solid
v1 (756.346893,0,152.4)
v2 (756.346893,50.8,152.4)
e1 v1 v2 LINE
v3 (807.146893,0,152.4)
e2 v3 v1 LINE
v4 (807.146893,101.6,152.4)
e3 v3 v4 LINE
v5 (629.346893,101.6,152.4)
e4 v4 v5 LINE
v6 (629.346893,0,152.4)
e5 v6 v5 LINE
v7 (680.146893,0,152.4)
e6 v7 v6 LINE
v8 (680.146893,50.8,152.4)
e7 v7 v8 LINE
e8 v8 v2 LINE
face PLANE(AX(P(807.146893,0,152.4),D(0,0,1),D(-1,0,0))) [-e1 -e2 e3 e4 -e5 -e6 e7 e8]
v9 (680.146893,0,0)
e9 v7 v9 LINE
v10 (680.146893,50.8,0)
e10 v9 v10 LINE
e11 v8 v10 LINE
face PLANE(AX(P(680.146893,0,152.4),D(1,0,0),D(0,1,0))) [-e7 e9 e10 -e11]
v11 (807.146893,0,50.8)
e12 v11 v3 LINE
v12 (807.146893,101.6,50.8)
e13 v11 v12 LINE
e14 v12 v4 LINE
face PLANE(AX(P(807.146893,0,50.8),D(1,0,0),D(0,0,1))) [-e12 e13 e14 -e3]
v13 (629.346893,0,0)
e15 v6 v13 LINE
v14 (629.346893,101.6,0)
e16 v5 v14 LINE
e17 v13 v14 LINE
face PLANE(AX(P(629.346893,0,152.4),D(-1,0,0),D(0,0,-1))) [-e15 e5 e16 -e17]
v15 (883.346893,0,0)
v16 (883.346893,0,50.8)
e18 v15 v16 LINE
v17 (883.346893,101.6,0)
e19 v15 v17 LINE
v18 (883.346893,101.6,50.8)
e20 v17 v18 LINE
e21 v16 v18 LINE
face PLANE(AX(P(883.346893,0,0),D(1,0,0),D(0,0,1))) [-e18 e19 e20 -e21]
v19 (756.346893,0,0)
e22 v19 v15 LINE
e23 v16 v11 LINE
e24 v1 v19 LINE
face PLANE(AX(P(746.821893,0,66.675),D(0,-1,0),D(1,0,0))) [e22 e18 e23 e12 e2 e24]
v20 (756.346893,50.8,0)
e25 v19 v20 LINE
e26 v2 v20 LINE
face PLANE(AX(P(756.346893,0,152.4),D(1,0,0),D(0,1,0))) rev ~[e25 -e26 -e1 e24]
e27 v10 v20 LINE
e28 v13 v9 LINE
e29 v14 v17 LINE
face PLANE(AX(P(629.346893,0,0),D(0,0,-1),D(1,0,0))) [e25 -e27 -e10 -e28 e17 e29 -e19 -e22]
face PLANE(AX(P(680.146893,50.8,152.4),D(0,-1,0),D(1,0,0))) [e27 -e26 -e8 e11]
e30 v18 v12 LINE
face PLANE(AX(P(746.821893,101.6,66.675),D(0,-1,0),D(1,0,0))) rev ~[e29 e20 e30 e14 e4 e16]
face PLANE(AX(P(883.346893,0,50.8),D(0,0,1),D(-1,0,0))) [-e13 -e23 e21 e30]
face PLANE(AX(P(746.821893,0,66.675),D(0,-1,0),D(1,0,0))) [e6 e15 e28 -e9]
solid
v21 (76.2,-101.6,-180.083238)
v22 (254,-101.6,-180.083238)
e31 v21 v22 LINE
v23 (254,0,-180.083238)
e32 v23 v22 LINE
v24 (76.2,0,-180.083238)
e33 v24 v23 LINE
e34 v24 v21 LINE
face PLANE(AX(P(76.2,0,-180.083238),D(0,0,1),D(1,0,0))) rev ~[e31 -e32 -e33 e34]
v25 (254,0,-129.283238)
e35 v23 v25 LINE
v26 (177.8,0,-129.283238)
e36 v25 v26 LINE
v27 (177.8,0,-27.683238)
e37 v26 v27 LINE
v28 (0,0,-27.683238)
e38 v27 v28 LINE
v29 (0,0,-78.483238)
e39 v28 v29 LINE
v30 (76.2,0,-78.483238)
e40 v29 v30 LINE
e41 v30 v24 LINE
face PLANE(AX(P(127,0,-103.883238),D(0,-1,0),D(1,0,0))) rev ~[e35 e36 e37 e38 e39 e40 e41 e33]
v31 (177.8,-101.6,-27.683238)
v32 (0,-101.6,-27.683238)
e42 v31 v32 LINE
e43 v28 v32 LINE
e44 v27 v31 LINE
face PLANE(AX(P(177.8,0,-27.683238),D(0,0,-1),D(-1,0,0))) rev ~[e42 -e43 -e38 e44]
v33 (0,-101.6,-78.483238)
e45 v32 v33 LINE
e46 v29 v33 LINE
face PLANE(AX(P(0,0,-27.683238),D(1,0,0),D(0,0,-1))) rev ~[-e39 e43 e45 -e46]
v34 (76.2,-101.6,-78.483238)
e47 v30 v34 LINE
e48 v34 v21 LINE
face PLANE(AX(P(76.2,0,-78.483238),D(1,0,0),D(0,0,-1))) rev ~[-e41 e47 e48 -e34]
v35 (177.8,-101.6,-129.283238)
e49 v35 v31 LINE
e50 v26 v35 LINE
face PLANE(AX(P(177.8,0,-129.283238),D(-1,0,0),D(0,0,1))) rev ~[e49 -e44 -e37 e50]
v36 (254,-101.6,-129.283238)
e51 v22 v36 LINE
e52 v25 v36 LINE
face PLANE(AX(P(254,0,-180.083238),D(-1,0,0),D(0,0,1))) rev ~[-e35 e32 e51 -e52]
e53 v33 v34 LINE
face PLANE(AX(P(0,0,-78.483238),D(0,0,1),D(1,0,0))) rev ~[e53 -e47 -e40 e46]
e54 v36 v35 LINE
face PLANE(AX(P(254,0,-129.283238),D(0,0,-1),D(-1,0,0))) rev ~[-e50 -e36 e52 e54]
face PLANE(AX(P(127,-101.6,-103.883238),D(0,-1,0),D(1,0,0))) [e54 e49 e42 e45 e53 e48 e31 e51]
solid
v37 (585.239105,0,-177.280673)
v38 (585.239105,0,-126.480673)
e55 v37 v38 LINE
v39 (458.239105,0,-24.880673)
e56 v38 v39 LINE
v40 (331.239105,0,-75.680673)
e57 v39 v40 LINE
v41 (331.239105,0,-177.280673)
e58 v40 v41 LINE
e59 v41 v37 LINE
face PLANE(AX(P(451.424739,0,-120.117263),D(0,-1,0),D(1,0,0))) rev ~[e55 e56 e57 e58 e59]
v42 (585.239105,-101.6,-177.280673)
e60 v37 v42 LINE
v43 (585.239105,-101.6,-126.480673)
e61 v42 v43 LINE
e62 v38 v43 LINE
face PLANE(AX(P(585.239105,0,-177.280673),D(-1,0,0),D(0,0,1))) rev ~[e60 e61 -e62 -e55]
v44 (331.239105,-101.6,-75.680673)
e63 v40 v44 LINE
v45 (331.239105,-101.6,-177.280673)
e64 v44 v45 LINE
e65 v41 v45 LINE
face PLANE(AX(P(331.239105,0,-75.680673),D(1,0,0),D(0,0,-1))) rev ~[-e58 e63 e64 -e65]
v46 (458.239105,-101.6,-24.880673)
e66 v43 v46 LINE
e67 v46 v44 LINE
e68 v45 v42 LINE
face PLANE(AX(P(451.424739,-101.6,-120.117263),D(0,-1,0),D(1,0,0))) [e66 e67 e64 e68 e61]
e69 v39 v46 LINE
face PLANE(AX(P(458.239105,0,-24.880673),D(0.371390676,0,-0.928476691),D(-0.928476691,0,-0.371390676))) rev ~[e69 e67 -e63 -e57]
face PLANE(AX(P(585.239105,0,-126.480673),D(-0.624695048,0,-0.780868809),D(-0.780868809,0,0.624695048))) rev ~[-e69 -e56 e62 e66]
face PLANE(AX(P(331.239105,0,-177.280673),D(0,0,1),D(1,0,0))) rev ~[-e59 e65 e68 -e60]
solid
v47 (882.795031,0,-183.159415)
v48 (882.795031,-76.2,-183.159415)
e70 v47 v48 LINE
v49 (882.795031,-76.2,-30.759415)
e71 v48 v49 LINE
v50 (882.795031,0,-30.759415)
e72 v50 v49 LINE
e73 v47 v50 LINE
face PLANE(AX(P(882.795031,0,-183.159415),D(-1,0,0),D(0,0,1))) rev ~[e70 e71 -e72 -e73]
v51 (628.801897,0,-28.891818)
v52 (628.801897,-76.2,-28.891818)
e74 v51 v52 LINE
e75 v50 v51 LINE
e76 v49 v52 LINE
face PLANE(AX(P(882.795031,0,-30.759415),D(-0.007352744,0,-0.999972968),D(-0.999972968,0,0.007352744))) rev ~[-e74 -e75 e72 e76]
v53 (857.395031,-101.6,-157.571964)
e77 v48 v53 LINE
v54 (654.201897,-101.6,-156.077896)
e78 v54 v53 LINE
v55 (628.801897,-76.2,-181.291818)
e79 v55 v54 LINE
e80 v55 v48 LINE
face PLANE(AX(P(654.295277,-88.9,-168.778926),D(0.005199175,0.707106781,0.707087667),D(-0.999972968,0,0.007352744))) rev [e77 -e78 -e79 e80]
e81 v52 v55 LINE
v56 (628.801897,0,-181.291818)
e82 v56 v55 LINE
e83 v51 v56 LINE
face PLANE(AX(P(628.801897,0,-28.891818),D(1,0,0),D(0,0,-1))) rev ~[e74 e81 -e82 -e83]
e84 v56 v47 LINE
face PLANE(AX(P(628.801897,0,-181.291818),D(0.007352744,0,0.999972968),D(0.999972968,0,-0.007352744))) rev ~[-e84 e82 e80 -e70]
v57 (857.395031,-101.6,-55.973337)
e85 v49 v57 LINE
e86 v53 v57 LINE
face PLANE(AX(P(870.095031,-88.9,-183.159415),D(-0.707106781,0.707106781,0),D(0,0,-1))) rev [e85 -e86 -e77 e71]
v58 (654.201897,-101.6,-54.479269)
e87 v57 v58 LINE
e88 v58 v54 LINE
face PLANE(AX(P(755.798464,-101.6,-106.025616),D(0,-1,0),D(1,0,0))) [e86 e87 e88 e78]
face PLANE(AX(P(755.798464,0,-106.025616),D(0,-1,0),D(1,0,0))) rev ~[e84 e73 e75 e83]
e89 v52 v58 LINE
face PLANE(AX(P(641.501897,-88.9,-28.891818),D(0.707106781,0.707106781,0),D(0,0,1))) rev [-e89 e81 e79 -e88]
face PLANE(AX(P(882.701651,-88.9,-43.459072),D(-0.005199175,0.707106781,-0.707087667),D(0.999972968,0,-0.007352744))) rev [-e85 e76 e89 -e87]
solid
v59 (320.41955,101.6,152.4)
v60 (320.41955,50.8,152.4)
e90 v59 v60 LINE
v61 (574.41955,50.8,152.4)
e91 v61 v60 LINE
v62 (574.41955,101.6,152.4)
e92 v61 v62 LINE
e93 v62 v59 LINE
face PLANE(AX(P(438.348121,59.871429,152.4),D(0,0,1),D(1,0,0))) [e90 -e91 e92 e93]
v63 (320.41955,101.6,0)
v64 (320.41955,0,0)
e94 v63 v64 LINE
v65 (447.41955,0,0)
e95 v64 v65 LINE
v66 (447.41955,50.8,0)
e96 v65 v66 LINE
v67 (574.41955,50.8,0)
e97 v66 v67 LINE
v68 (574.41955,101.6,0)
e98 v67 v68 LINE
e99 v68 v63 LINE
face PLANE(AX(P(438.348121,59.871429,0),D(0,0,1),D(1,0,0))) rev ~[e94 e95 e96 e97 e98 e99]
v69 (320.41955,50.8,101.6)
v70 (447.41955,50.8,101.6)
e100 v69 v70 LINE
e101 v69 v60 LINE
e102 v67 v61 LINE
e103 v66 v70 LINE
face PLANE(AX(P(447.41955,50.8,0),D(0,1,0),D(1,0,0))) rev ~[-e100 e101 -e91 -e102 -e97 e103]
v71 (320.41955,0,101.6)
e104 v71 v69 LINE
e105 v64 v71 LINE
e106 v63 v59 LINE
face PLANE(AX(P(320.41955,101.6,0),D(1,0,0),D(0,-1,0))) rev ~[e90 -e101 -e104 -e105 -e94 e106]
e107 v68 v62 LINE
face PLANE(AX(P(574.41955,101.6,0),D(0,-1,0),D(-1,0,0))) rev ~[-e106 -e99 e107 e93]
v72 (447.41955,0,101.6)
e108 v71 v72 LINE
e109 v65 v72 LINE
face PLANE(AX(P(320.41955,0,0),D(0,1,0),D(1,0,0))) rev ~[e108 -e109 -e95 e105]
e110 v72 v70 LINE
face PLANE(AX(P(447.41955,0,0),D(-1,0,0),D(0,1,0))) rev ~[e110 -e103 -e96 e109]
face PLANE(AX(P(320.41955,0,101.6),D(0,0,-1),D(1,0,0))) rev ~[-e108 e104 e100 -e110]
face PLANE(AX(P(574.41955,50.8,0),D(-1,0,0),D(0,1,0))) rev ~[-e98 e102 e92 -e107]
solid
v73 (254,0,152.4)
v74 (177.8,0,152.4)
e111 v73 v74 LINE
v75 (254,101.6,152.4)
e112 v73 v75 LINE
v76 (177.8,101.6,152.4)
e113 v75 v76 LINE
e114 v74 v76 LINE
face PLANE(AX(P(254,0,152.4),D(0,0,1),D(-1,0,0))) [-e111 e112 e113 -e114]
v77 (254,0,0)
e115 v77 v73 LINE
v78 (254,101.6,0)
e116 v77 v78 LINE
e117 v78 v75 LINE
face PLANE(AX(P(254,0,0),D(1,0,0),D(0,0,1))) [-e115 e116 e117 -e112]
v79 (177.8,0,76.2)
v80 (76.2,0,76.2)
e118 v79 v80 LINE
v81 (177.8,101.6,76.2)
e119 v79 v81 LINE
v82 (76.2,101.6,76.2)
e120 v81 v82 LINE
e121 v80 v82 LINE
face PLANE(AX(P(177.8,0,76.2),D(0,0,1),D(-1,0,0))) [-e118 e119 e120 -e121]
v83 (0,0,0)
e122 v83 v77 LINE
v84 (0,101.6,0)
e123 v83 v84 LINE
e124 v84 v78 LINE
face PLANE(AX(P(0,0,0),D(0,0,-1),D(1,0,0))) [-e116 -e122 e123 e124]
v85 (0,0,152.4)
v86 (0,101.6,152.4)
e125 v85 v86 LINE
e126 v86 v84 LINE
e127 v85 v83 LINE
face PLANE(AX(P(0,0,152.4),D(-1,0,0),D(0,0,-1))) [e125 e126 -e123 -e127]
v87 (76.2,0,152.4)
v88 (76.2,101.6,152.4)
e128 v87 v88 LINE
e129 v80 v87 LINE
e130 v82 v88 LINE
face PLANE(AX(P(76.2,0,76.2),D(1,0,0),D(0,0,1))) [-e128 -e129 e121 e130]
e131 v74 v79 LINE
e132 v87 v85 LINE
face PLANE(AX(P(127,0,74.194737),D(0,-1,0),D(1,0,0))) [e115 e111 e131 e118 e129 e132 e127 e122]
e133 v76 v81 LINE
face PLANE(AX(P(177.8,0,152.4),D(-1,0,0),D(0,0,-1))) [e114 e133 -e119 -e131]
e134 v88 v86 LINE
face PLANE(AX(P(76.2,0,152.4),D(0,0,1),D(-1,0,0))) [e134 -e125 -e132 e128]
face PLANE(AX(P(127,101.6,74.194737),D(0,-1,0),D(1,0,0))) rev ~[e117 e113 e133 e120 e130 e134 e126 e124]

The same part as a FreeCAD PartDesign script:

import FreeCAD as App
import Part
import Sketcher
from FreeCAD import Vector
Q = App.Units.Quantity


def edges_at(feature, points):
    """Names of the edges that pass closest to the given points."""
    edges = feature.Shape.Edges
    near = lambda p: min(range(len(edges)), key=lambda i: edges[i].distToShape(Part.Vertex(*p))[0])
    return sorted({f"Edge{near(p) + 1}" for p in points})


def add_polygon(sketch, points):
    """Adds a closed chain of lines whose ends are joined by coincident constraints."""
    first, n = sketch.GeometryCount, len(points)
    for a, b in zip(points, points[1:] + points[:1]):
        sketch.addGeometry(Part.LineSegment(App.Vector(*a, 0), App.Vector(*b, 0)), False)
    for i in range(n):
        sketch.addConstraint(Sketcher.Constraint("Coincident", first + i, 2, first + (i + 1) % n, 1))

doc = App.newDocument("Part")
params = doc.addObject("Spreadsheet::Sheet", "Params")
for row, (alias, value) in enumerate([
    ("sketch1_width", "10 in"),
    ("sketch1_width2", "3 in"),
    ("sketch1_height", "6 in"),
    ("pad1_length", "4 in"),
    ("sketch2_width", "10 in"),
    ("sketch2_height", "2 in"),
    ("pad2_length", "6 in"),
    ("sketch3_width", "5 in"),
    ("sketch3_height", "2 in"),
    ("pocket1_length", "2 in"),
    ("sketch4_width", "10 in"),
    ("sketch4_width2", "3 in"),
    ("sketch4_height", "6 in"),
    ("sketch4_height2", "2 in"),
    ("pad3_length", "4 in"),
    ("sketch5_width", "3 in"),
    ("sketch5_height", "2 in"),
    ("pocket2_length", "6 in"),
    ("sketch6_width", "7 in"),
    ("sketch6_width2", "3 in"),
    ("sketch6_height", "2 in"),
    ("sketch6_height2", "4 in"),
    ("pad4_length", "4 in"),
    ("sketch7_width", "10 in"),
    ("sketch7_height", "2 in"),
    ("sketch7_height2", "4 in"),
    ("pad5_length", "4 in"),
    ("sketch8_height", "6 in"),
    ("sketch8_length", "10 in"),
    ("pad6_length", "4 in"),
    ("chamfer_size", "1 in"),
    ("chamfer2_size", "1 in"),
], start=1):
    params.set(f"A{row}", alias)
    params.set(f"B{row}", "=" + value)
    params.setAlias(f"B{row}", alias)

body = doc.addObject("PartDesign::Body", "Body")

sketch1 = body.newObject("Sketcher::SketchObject", "Sketch")
sketch1.AttachmentSupport = (doc.getObject("XZ_Plane"), [""])
sketch1.MapMode = "FlatFace"
add_polygon(sketch1, [(0, 152.4), (0, 0), (254, 0), (254, 152.4), (177.8, 152.4), (177.8, 76.2), (76.2, 76.2), (76.2, 152.4)])
sketch1.addConstraint(Sketcher.Constraint("Vertical", 0))
sketch1.addConstraint(Sketcher.Constraint("Horizontal", 1))
sketch1.addConstraint(Sketcher.Constraint("Vertical", 2))
sketch1.addConstraint(Sketcher.Constraint("Horizontal", 3))
sketch1.addConstraint(Sketcher.Constraint("Vertical", 4))
sketch1.addConstraint(Sketcher.Constraint("Horizontal", 5))
sketch1.addConstraint(Sketcher.Constraint("Vertical", 6))
sketch1.addConstraint(Sketcher.Constraint("Horizontal", 7))
sketch1.addConstraint(Sketcher.Constraint("Coincident", 0, 2, -1, 1))
sketch1.addConstraint(Sketcher.Constraint("Horizontal", 3, 2, 6, 2))
sketch1.addConstraint(Sketcher.Constraint("Equal", 3, 7))
sketch1.addConstraint(Sketcher.Constraint("Equal", 7, 4))
sketch1.addConstraint(Sketcher.Constraint("DistanceX", 1, 1, 1, 2, Q("10 in")))
sketch1.addConstraint(Sketcher.Constraint("DistanceX", 3, 2, 3, 1, Q("3 in")))
sketch1.addConstraint(Sketcher.Constraint("DistanceY", 0, 2, 0, 1, Q("6 in")))
sketch1.setExpression("Constraints[20]", "Params.sketch1_width")
sketch1.setExpression("Constraints[21]", "Params.sketch1_width2")
sketch1.setExpression("Constraints[22]", "Params.sketch1_height")
pad1 = body.newObject("PartDesign::Pad", "Pad")
pad1.Profile = sketch1
pad1.setExpression("Length", "Params.pad1_length")
pad1.Reversed = True
body2 = doc.addObject("PartDesign::Body", "Body001")

sketch2 = body2.newObject("Sketcher::SketchObject", "Sketch001")
sketch2.AttachmentSupport = (doc.getObject("XY_Plane001"), [""])
sketch2.MapMode = "FlatFace"
add_polygon(sketch2, [(574.41955, 50.8), (574.41955, 101.6), (320.41955, 101.6), (320.41955, 0), (447.41955, 0), (447.41955, 50.8)])
sketch2.addConstraint(Sketcher.Constraint("Vertical", 0))
sketch2.addConstraint(Sketcher.Constraint("Horizontal", 1))
sketch2.addConstraint(Sketcher.Constraint("Vertical", 2))
sketch2.addConstraint(Sketcher.Constraint("Horizontal", 3))
sketch2.addConstraint(Sketcher.Constraint("Vertical", 4))
sketch2.addConstraint(Sketcher.Constraint("Horizontal", 5))
sketch2.addConstraint(Sketcher.Constraint("PointOnObject", 2, 2, -1))
sketch2.addConstraint(Sketcher.Constraint("Equal", 3, 5))
sketch2.addConstraint(Sketcher.Constraint("Equal", 0, 4))
sketch2.addConstraint(Sketcher.Constraint("DistanceX", 1, 2, 1, 1, Q("10 in")))
sketch2.addConstraint(Sketcher.Constraint("DistanceY", 0, 1, 0, 2, Q("2 in")))
sketch2.addConstraint(Sketcher.Constraint("DistanceX", -1, 1, 0, 2, 574.41955))
sketch2.setExpression("Constraints[15]", "Params.sketch2_width")
sketch2.setExpression("Constraints[16]", "Params.sketch2_height")
pad2 = body2.newObject("PartDesign::Pad", "Pad001")
pad2.Profile = sketch2
pad2.setExpression("Length", "Params.pad2_length")

sketch3 = body2.newObject("Sketcher::SketchObject", "Sketch002")
sketch3.AttachmentSupport = (doc.getObject("XZ_Plane001"), [""])
sketch3.MapMode = "FlatFace"
add_polygon(sketch3, [(320.41955, 152.4), (320.41955, 101.6), (447.41955, 101.6), (447.41955, 152.4)])
sketch3.addConstraint(Sketcher.Constraint("Vertical", 0))
sketch3.addConstraint(Sketcher.Constraint("Horizontal", 1))
sketch3.addConstraint(Sketcher.Constraint("Vertical", 2))
sketch3.addConstraint(Sketcher.Constraint("Horizontal", 3))
sketch3.addConstraint(Sketcher.Constraint("DistanceX", 1, 1, 1, 2, Q("5 in")))
sketch3.addConstraint(Sketcher.Constraint("DistanceY", 0, 2, 0, 1, Q("2 in")))
sketch3.addConstraint(Sketcher.Constraint("DistanceY", -1, 1, 0, 2, Q("4 in")))
sketch3.addConstraint(Sketcher.Constraint("DistanceX", -1, 1, 0, 2, 320.41955))
sketch3.setExpression("Constraints[8]", "Params.sketch3_width")
sketch3.setExpression("Constraints[9]", "Params.sketch3_height")
pocket1 = body2.newObject("PartDesign::Pocket", "Pocket")
pocket1.Profile = sketch3
pocket1.setExpression("Length", "Params.pocket1_length")
body3 = doc.addObject("PartDesign::Body", "Body002")

sketch4 = body3.newObject("Sketcher::SketchObject", "Sketch003")
sketch4.AttachmentSupport = (doc.getObject("XZ_Plane002"), [""])
sketch4.MapMode = "FlatFace"
add_polygon(sketch4, [(629.346893, 152.4), (629.346893, 0), (883.346893, 0), (883.346893, 50.8), (807.146893, 50.8), (807.146893, 152.4)])
sketch4.addConstraint(Sketcher.Constraint("Vertical", 0))
sketch4.addConstraint(Sketcher.Constraint("Horizontal", 1))
sketch4.addConstraint(Sketcher.Constraint("Vertical", 2))
sketch4.addConstraint(Sketcher.Constraint("Horizontal", 3))
sketch4.addConstraint(Sketcher.Constraint("Vertical", 4))
sketch4.addConstraint(Sketcher.Constraint("Horizontal", 5))
sketch4.addConstraint(Sketcher.Constraint("PointOnObject", 0, 2, -1))
sketch4.addConstraint(Sketcher.Constraint("DistanceX", 1, 1, 1, 2, Q("10 in")))
sketch4.addConstraint(Sketcher.Constraint("DistanceX", 3, 2, 3, 1, Q("3 in")))
sketch4.addConstraint(Sketcher.Constraint("DistanceY", 0, 2, 0, 1, Q("6 in")))
sketch4.addConstraint(Sketcher.Constraint("DistanceY", 2, 1, 2, 2, Q("2 in")))
sketch4.addConstraint(Sketcher.Constraint("DistanceX", -1, 1, 0, 2, 629.346893))
sketch4.setExpression("Constraints[13]", "Params.sketch4_width")
sketch4.setExpression("Constraints[14]", "Params.sketch4_width2")
sketch4.setExpression("Constraints[15]", "Params.sketch4_height")
sketch4.setExpression("Constraints[16]", "Params.sketch4_height2")
pad3 = body3.newObject("PartDesign::Pad", "Pad002")
pad3.Profile = sketch4
pad3.setExpression("Length", "Params.pad3_length")
pad3.Reversed = True

sketch5 = body3.newObject("Sketcher::SketchObject", "Sketch004")
sketch5.AttachmentSupport = (doc.getObject("XY_Plane002"), [""])
sketch5.MapMode = "FlatFace"
sketch5.AttachmentOffset = App.Placement(Vector(0, 0, 6 * 25.4), App.Rotation())
add_polygon(sketch5, [(680.146893, 50.8), (680.146893, 0), (756.346893, 0), (756.346893, 50.8)])
sketch5.addConstraint(Sketcher.Constraint("Vertical", 0))
sketch5.addConstraint(Sketcher.Constraint("Horizontal", 1))
sketch5.addConstraint(Sketcher.Constraint("Vertical", 2))
sketch5.addConstraint(Sketcher.Constraint("Horizontal", 3))
sketch5.addConstraint(Sketcher.Constraint("PointOnObject", 0, 2, -1))
sketch5.addConstraint(Sketcher.Constraint("DistanceX", 1, 1, 1, 2, Q("3 in")))
sketch5.addConstraint(Sketcher.Constraint("DistanceY", 0, 2, 0, 1, Q("2 in")))
sketch5.addConstraint(Sketcher.Constraint("DistanceX", -1, 1, 0, 2, 680.146893))
sketch5.setExpression("Constraints[9]", "Params.sketch5_width")
sketch5.setExpression("Constraints[10]", "Params.sketch5_height")
pocket2 = body3.newObject("PartDesign::Pocket", "Pocket001")
pocket2.Profile = sketch5
pocket2.setExpression("Length", "Params.pocket2_length")
body4 = doc.addObject("PartDesign::Body", "Body003")

sketch6 = body4.newObject("Sketcher::SketchObject", "Sketch005")
sketch6.AttachmentSupport = (doc.getObject("XZ_Plane003"), [""])
sketch6.MapMode = "FlatFace"
add_polygon(sketch6, [(177.8, -27.683238), (0, -27.683238), (0, -78.483238), (76.2, -78.483238), (76.2, -180.083238), (254, -180.083238), (254, -129.283238), (177.8, -129.283238)])
sketch6.addConstraint(Sketcher.Constraint("Horizontal", 0))
sketch6.addConstraint(Sketcher.Constraint("Vertical", 1))
sketch6.addConstraint(Sketcher.Constraint("Horizontal", 2))
sketch6.addConstraint(Sketcher.Constraint("Vertical", 3))
sketch6.addConstraint(Sketcher.Constraint("Horizontal", 4))
sketch6.addConstraint(Sketcher.Constraint("Vertical", 5))
sketch6.addConstraint(Sketcher.Constraint("Horizontal", 6))
sketch6.addConstraint(Sketcher.Constraint("Vertical", 7))
sketch6.addConstraint(Sketcher.Constraint("PointOnObject", 0, 2, -2))
sketch6.addConstraint(Sketcher.Constraint("Equal", 0, 4))
sketch6.addConstraint(Sketcher.Constraint("Equal", 1, 5))
sketch6.addConstraint(Sketcher.Constraint("DistanceX", 0, 2, 0, 1, Q("7 in")))
sketch6.addConstraint(Sketcher.Constraint("DistanceX", 2, 1, 2, 2, Q("3 in")))
sketch6.addConstraint(Sketcher.Constraint("DistanceY", 1, 2, 1, 1, Q("2 in")))
sketch6.addConstraint(Sketcher.Constraint("DistanceY", 3, 2, 3, 1, Q("4 in")))
sketch6.addConstraint(Sketcher.Constraint("DistanceY", 1, 2, -1, 1, 78.483238))
sketch6.setExpression("Constraints[19]", "Params.sketch6_width")
sketch6.setExpression("Constraints[20]", "Params.sketch6_width2")
sketch6.setExpression("Constraints[21]", "Params.sketch6_height")
sketch6.setExpression("Constraints[22]", "Params.sketch6_height2")
pad4 = body4.newObject("PartDesign::Pad", "Pad003")
pad4.Profile = sketch6
pad4.setExpression("Length", "Params.pad4_length")
body5 = doc.addObject("PartDesign::Body", "Body004")

sketch7 = body5.newObject("Sketcher::SketchObject", "Sketch006")
sketch7.AttachmentSupport = (doc.getObject("XZ_Plane004"), [""])
sketch7.MapMode = "FlatFace"
add_polygon(sketch7, [(331.239105, -177.280673), (585.239105, -177.280673), (585.239105, -126.480673), (458.239105, -24.880673), (331.239105, -75.680673)])
sketch7.addConstraint(Sketcher.Constraint("Horizontal", 0))
sketch7.addConstraint(Sketcher.Constraint("Vertical", 1))
sketch7.addConstraint(Sketcher.Constraint("Vertical", 4))
sketch7.addConstraint(Sketcher.Constraint("DistanceX", 0, 1, 0, 2, Q("10 in")))
sketch7.addConstraint(Sketcher.Constraint("DistanceY", 1, 1, 1, 2, Q("2 in")))
sketch7.addConstraint(Sketcher.Constraint("DistanceY", 4, 2, 4, 1, Q("4 in")))
sketch7.addConstraint(Sketcher.Constraint("DistanceX", 2, 2, 1, 2, Q("5 in")))
sketch7.addConstraint(Sketcher.Constraint("DistanceY", 1, 2, 2, 2, Q("4 in")))
sketch7.addConstraint(Sketcher.Constraint("DistanceX", -1, 1, 0, 2, 585.239105))
sketch7.addConstraint(Sketcher.Constraint("DistanceY", 0, 2, -1, 1, 177.280673))
sketch7.setExpression("Constraints[8]", "Params.sketch7_width")
sketch7.setExpression("Constraints[9]", "Params.sketch7_height")
sketch7.setExpression("Constraints[10]", "Params.sketch7_height2")
pad5 = body5.newObject("PartDesign::Pad", "Pad004")
pad5.Profile = sketch7
pad5.setExpression("Length", "Params.pad5_length")
body6 = doc.addObject("PartDesign::Body", "Body005")

sketch8 = body6.newObject("Sketcher::SketchObject", "Sketch007")
sketch8.AttachmentSupport = (doc.getObject("XZ_Plane005"), [""])
sketch8.MapMode = "FlatFace"
add_polygon(sketch8, [(628.801897, -28.891818), (628.801897, -181.291818), (882.795031, -183.159415), (882.795031, -30.759415)])
sketch8.addConstraint(Sketcher.Constraint("Vertical", 0))
sketch8.addConstraint(Sketcher.Constraint("Vertical", 2))
sketch8.addConstraint(Sketcher.Constraint("Parallel", 1, 3))
sketch8.addConstraint(Sketcher.Constraint("DistanceY", 0, 2, 0, 1, Q("6 in")))
sketch8.addConstraint(Sketcher.Constraint("Distance", 1, Q("10 in")))
sketch8.addConstraint(Sketcher.Constraint("DistanceY", 0, 2, -1, 1, 181.291818))
sketch8.addConstraint(Sketcher.Constraint("DistanceX", -1, 1, 1, 2, 882.795031))
sketch8.addConstraint(Sketcher.Constraint("DistanceX", -1, 1, 0, 2, 628.801897))
sketch8.setExpression("Constraints[7]", "Params.sketch8_height")
sketch8.setExpression("Constraints[8]", "Params.sketch8_length")
pad6 = body6.newObject("PartDesign::Pad", "Pad005")
pad6.Profile = sketch8
pad6.setExpression("Length", "Params.pad6_length")
doc.recompute()

chamfer = body6.newObject("PartDesign::Chamfer", "Chamfer")
chamfer.Base = (pad6, edges_at(pad6, [(755.798, -101.6, -29.826), (882.795, -101.6, -106.959), (628.802, -101.6, -105.092)]))
chamfer.setExpression("Size", "Params.chamfer_size")
doc.recompute()

chamfer2 = body6.newObject("PartDesign::Chamfer", "Chamfer001")
chamfer2.Base = (chamfer, edges_at(chamfer, [(755.798, -101.6, -182.226)]))
chamfer2.setExpression("Size", "Params.chamfer2_size")

doc.recompute()
